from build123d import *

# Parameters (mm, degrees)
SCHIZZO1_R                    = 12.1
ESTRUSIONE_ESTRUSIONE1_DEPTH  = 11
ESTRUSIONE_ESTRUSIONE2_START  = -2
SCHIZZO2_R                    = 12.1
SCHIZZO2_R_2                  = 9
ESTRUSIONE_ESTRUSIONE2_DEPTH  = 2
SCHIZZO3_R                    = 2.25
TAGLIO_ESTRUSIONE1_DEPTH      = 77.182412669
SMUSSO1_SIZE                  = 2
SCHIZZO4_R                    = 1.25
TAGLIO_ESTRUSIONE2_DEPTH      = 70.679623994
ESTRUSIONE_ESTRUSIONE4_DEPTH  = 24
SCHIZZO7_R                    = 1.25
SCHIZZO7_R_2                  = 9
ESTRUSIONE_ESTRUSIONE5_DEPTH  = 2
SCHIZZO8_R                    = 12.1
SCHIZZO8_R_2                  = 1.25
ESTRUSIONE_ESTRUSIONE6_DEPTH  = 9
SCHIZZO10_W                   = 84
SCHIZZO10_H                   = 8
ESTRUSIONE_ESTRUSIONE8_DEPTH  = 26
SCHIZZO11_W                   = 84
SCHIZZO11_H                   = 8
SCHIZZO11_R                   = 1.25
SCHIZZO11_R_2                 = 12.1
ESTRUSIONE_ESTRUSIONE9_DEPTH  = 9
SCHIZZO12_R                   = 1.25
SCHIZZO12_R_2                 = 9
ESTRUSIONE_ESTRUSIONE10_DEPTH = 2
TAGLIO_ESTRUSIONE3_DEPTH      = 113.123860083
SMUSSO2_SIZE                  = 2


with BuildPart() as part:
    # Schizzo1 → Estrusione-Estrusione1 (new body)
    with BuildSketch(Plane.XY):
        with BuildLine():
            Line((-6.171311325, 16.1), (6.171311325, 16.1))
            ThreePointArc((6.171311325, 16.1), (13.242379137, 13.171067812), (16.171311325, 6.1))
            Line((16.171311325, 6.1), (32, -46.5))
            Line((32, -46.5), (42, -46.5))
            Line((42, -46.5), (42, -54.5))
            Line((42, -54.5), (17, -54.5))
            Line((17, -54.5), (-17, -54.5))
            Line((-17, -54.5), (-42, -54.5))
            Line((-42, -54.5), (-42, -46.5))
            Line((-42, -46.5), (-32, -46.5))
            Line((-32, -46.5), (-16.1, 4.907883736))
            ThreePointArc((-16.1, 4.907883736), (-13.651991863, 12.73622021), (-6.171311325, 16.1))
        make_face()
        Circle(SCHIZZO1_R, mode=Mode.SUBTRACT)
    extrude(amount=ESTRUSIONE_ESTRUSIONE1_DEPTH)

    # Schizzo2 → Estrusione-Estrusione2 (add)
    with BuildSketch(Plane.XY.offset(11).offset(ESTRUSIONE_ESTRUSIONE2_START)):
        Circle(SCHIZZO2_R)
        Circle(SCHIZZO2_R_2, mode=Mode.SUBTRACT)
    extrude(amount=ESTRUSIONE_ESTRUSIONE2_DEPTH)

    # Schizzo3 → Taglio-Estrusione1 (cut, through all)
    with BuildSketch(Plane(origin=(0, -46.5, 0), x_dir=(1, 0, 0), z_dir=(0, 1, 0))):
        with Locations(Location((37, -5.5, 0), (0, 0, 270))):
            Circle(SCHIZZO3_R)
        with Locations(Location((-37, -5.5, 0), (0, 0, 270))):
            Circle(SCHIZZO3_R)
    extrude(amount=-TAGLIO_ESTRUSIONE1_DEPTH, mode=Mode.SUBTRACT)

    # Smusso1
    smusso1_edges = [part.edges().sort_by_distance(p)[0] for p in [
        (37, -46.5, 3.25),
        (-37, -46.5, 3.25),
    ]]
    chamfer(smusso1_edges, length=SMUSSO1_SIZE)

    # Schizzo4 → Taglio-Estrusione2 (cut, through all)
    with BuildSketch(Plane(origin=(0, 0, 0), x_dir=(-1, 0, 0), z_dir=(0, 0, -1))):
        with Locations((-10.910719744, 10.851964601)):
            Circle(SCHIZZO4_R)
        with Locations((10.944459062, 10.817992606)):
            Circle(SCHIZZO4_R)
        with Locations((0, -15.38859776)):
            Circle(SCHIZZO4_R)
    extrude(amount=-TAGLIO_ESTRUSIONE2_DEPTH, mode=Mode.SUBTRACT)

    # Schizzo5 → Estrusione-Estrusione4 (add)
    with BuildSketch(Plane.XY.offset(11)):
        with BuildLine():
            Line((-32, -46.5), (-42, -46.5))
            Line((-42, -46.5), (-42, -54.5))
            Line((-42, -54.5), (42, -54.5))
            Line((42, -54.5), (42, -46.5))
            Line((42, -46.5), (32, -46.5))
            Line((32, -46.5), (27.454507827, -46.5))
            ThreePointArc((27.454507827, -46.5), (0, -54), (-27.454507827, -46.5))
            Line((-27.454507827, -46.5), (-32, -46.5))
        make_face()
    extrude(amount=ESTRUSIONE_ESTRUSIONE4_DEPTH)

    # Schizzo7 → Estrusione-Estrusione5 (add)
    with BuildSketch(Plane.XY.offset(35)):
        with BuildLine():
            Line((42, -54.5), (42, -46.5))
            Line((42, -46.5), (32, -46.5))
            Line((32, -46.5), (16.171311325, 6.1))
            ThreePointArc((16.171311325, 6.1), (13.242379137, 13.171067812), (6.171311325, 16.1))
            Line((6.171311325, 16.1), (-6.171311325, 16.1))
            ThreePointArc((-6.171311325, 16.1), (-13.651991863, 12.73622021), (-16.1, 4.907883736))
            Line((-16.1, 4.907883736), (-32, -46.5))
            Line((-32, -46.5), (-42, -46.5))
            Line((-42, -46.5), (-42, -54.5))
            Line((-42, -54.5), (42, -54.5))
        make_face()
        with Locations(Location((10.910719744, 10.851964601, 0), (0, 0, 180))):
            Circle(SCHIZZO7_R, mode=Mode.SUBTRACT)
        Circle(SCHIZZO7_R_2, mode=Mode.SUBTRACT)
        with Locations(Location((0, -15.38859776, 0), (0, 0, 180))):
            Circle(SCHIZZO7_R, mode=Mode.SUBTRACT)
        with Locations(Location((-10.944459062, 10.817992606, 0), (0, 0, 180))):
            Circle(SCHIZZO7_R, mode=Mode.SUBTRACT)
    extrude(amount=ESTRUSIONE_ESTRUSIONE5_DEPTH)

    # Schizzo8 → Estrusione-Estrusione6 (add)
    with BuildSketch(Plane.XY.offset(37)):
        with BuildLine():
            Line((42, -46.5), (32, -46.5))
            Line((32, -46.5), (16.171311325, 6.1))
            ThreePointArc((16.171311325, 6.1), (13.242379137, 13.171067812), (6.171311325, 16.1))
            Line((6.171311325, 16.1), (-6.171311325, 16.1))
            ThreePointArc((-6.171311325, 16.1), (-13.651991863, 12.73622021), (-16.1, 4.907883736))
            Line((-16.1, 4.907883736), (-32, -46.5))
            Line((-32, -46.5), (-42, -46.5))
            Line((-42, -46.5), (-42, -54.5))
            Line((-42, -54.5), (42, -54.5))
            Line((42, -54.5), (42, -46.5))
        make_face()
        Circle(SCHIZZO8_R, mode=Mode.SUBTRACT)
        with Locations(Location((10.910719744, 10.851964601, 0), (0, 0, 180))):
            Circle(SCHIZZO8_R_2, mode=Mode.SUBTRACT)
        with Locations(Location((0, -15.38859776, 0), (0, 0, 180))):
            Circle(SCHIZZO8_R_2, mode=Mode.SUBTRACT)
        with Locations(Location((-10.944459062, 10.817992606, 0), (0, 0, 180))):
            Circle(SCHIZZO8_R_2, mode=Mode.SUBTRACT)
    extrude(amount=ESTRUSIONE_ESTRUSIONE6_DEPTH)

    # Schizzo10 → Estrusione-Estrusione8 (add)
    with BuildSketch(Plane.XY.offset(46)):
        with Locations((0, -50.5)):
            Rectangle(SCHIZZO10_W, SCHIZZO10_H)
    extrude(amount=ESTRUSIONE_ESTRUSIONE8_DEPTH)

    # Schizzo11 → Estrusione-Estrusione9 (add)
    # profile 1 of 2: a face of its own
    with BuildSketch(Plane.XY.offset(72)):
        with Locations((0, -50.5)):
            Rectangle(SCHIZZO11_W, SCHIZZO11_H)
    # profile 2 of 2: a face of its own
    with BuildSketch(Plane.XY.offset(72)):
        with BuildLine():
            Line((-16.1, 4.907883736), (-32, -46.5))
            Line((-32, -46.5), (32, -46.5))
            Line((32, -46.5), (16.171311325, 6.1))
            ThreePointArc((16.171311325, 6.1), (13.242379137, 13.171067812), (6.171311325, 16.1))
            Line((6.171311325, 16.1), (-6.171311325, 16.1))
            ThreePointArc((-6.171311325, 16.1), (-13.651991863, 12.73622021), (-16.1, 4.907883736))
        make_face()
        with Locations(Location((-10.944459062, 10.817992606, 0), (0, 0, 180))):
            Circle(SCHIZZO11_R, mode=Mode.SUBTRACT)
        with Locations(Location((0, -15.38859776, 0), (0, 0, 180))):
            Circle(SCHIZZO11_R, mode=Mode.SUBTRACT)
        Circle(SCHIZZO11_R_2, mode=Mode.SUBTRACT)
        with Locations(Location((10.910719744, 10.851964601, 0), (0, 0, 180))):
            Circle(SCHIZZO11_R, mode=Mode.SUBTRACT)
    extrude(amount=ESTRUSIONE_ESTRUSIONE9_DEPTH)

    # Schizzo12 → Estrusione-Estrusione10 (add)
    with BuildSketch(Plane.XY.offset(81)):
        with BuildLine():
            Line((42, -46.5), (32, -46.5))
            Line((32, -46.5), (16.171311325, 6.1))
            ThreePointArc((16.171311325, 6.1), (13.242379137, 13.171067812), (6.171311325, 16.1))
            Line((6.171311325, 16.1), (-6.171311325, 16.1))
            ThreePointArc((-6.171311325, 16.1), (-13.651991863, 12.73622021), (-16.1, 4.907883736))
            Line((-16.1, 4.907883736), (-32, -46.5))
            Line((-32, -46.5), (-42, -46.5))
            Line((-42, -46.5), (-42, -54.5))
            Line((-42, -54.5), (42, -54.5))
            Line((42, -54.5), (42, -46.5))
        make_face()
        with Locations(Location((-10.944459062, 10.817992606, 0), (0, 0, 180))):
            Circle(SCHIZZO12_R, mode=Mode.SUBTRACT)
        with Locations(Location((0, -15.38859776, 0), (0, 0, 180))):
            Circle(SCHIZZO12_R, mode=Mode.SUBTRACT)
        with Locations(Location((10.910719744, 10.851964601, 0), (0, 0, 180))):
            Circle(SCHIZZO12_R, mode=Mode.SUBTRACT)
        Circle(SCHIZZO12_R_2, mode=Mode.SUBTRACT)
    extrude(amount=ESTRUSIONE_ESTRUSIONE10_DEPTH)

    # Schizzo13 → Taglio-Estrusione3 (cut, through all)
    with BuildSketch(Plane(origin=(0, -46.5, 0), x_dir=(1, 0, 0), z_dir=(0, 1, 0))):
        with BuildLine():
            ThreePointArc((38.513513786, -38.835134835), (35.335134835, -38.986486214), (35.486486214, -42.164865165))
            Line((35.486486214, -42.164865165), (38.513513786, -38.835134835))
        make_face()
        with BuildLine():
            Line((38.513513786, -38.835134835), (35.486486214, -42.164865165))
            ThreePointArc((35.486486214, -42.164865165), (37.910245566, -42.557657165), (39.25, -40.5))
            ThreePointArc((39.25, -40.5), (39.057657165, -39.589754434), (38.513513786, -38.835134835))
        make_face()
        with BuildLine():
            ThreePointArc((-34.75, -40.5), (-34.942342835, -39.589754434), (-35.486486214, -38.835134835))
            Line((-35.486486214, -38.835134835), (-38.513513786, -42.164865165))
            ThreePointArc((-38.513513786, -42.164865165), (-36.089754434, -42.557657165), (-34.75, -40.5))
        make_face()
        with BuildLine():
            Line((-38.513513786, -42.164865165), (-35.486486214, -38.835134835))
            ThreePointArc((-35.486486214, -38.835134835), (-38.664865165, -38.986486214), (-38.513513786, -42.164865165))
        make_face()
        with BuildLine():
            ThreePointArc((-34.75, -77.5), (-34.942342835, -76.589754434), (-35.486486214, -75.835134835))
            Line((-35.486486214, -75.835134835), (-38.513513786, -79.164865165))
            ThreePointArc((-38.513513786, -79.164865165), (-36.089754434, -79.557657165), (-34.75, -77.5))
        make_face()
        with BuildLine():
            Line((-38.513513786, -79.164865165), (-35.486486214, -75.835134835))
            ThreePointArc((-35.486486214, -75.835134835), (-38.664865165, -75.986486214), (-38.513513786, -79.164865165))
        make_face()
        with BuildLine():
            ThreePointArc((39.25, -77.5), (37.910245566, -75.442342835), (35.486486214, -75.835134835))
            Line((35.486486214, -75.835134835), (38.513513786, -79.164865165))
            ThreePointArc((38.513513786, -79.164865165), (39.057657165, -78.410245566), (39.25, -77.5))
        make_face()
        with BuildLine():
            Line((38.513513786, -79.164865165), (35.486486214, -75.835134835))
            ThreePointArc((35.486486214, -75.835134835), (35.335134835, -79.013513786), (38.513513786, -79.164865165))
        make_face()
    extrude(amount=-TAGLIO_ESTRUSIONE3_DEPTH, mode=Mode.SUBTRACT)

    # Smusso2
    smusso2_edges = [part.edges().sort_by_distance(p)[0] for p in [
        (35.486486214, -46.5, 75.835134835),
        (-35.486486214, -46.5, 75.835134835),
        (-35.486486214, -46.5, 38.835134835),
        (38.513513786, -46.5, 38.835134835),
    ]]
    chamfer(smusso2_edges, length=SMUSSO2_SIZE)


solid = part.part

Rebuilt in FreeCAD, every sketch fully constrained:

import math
import FreeCAD as App
import Part
import Sketcher
from FreeCAD import Vector


def edges_at(feature, points):
    """Names of the edges that pass closest to the given points."""
    edges = feature.Shape.Edges
    near = lambda p: min(range(len(edges)), key=lambda i: edges[i].distToShape(Part.Vertex(*p))[0])
    return sorted({f"Edge{near(p) + 1}" for p in points})

doc = App.newDocument("Part")
body = doc.addObject("PartDesign::Body", "Body")

sketch1 = body.newObject("Sketcher::SketchObject", "Sketch")
sketch1.AttachmentSupport = (doc.getObject("XY_Plane"), [""])
sketch1.MapMode = "FlatFace"
sketch1.addGeometry([
    Part.LineSegment(Vector(6, 16, 0), Vector(-6, 16, 0)),
    Part.ArcOfCircle(Part.Circle(Vector(-6, 6, 0), Vector(0, 0, 1), 10), math.radians(90), math.radians(187)),
    Part.LineSegment(Vector(-16, 5, 0), Vector(-32, -46, 0)),
    Part.LineSegment(Vector(-32, -46, 0), Vector(-42, -46, 0)),
    Part.LineSegment(Vector(-42, -46, 0), Vector(-42, -54, 0)),
    Part.LineSegment(Vector(-42, -54, 0), Vector(42, -54, 0)),
    Part.LineSegment(Vector(42, -54, 0), Vector(42, -46, 0)),
    Part.LineSegment(Vector(42, -46, 0), Vector(32, -46, 0)),
    Part.LineSegment(Vector(32, -46, 0), Vector(16, 6, 0)),
    Part.ArcOfCircle(Part.Circle(Vector(6, 6, 0), Vector(0, 0, 1), 10), math.radians(0), math.radians(90)),
    Part.Circle(Vector(0, 0, 0), Vector(0, 0, 1), 12),
], False)
sketch1.addConstraint([
    Sketcher.Constraint("Tangent", 0, 2, 1, 1),
    Sketcher.Constraint("Coincident", 1, 2, 2, 1),
    Sketcher.Constraint("Coincident", 2, 2, 3, 1),
    Sketcher.Constraint("Coincident", 3, 2, 4, 1),
    Sketcher.Constraint("Coincident", 4, 2, 5, 1),
    Sketcher.Constraint("Coincident", 5, 2, 6, 1),
    Sketcher.Constraint("Coincident", 6, 2, 7, 1),
    Sketcher.Constraint("Coincident", 7, 2, 8, 1),
    Sketcher.Constraint("Coincident", 8, 2, 9, 1),
    Sketcher.Constraint("Tangent", 9, 2, 0, 1),
    Sketcher.Constraint("Horizontal", 0),
    Sketcher.Constraint("Horizontal", 3),
    Sketcher.Constraint("Vertical", 4),
    Sketcher.Constraint("Horizontal", 5),
    Sketcher.Constraint("Vertical", 6),
    Sketcher.Constraint("Horizontal", 7),
    Sketcher.Constraint("Coincident", 10, 3, -1, 1),
    Sketcher.Constraint("Equal", 1, 9),
    Sketcher.Constraint("Symmetric", 3, 2, 6, 2, -2),
    Sketcher.Constraint("Horizontal", 9, 3, 8, 2),
    Sketcher.Constraint("Equal", 3, 7),
    Sketcher.Constraint("Radius", 1, 10.0),
    Sketcher.Constraint("Diameter", 10, 24.2),
    Sketcher.Constraint("DistanceX", 3, 2, 3, 1, 10.0),
    Sketcher.Constraint("DistanceX", 5, 1, 5, 2, 84.0),
    Sketcher.Constraint("DistanceY", 4, 2, 4, 1, 8.0),
    Sketcher.Constraint("DistanceY", -1, 1, 1, 3, 6.1),
    Sketcher.Constraint("DistanceX", 1, 2, -1, 1, 16.1),
    Sketcher.Constraint("DistanceY", 2, 2, -1, 1, 46.5),
    Sketcher.Constraint("Distance", 2, 53.810598),
    Sketcher.Constraint("DistanceX", 0, 2, 0, 1, 12.342623),
])
pad1 = body.newObject("PartDesign::Pad", "Pad")
pad1.Profile = sketch1
pad1.Length = 11

sketch2 = body.newObject("Sketcher::SketchObject", "Sketch001")
sketch2.AttachmentSupport = (doc.getObject("XY_Plane"), [""])
sketch2.MapMode = "FlatFace"
sketch2.AttachmentOffset = App.Placement(Vector(0, 0, 9), App.Rotation())
sketch2.addGeometry([
    Part.Circle(Vector(0, 0, 0), Vector(0, 0, 1), 12),
    Part.Circle(Vector(0, 0, 0), Vector(0, 0, 1), 9),
], False)
sketch2.addConstraint([
    Sketcher.Constraint("Coincident", 0, 3, -1, 1),
    Sketcher.Constraint("Coincident", 1, 3, -1, 1),
    Sketcher.Constraint("Diameter", 1, 18.0),
    Sketcher.Constraint("Diameter", 0, 24.2),
])
pad2 = body.newObject("PartDesign::Pad", "Pad001")
pad2.Profile = sketch2
pad2.Length = 2

sketch3 = body.newObject("Sketcher::SketchObject", "Sketch002")
sketch3.AttachmentSupport = (doc.getObject("XZ_Plane"), [""])
sketch3.MapMode = "FlatFace"
sketch3.AttachmentOffset = App.Placement(Vector(0, 0, 46.5), App.Rotation())
sketch3.addGeometry([
    Part.Circle(Vector(37, 5.5, 0), Vector(0, 0, 1), 2.2),
    Part.Circle(Vector(-37, 5.5, 0), Vector(0, 0, 1), 2.2),
], False)
sketch3.addConstraint([
    Sketcher.Constraint("Equal", 0, 1),
    Sketcher.Constraint("Symmetric", 0, 3, 1, 3, -2),
    Sketcher.Constraint("Diameter", 0, 4.5),
    Sketcher.Constraint("DistanceX", -1, 1, 0, 3, 37.0),
    Sketcher.Constraint("DistanceY", -1, 1, 0, 3, 5.5),
])
pocket1 = body.newObject("PartDesign::Pocket", "Pocket")
pocket1.Profile = sketch3
pocket1.Type = "ThroughAll"
pocket1.Reversed = True
doc.recompute()

chamfer = body.newObject("PartDesign::Chamfer", "Chamfer")
chamfer.Base = (pocket1, edges_at(pocket1, [(37, -46.5, 3.25), (-37, -46.5, 3.25)]))
chamfer.Size = 2

sketch4 = body.newObject("Sketcher::SketchObject", "Sketch003")
sketch4.AttachmentSupport = (doc.getObject("XY_Plane"), [""])
sketch4.MapMode = "FlatFace"
sketch4.addGeometry([
    Part.Circle(Vector(10.9, 10.9, 0), Vector(0, 0, 1), 1.2),
    Part.Circle(Vector(-10.9, 10.8, 0), Vector(0, 0, 1), 1.2),
    Part.Circle(Vector(0, -15.4, 0), Vector(0, 0, 1), 1.2),
], False)
sketch4.addConstraint([
    Sketcher.Constraint("Equal", 0, 1),
    Sketcher.Constraint("Equal", 1, 2),
    Sketcher.Constraint("PointOnObject", 2, 3, -2),
    Sketcher.Constraint("Diameter", 0, 2.5),
    Sketcher.Constraint("DistanceX", -1, 1, 0, 3, 10.91072),
    Sketcher.Constraint("DistanceX", 1, 3, -1, 1, 10.944459),
    Sketcher.Constraint("DistanceY", 1, 3, 0, 3, 0.033972),
    Sketcher.Constraint("DistanceY", 2, 3, 1, 3, 26.20659),
    Sketcher.Constraint("DistanceY", -1, 1, 0, 3, 10.851965),
])
pocket2 = body.newObject("PartDesign::Pocket", "Pocket001")
pocket2.Profile = sketch4
pocket2.Type = "ThroughAll"
pocket2.Reversed = True

sketch5 = body.newObject("Sketcher::SketchObject", "Sketch004")
sketch5.AttachmentSupport = (doc.getObject("XY_Plane"), [""])
sketch5.MapMode = "FlatFace"
sketch5.AttachmentOffset = App.Placement(Vector(0, 0, 11), App.Rotation())
sketch5.addGeometry([
    Part.LineSegment(Vector(-42, -46, 0), Vector(-42, -54, 0)),
    Part.LineSegment(Vector(-42, -54, 0), Vector(42, -54, 0)),
    Part.LineSegment(Vector(42, -54, 0), Vector(42, -46, 0)),
    Part.LineSegment(Vector(42, -46, 0), Vector(27, -46, 0)),
    Part.ArcOfCircle(Part.Circle(Vector(0, 0, 0), Vector(0, 0, 1), 54), math.radians(-121), math.radians(-59)),
    Part.LineSegment(Vector(-27, -46, 0), Vector(-42, -46, 0)),
], False)
sketch5.addConstraint([
    Sketcher.Constraint("Coincident", 0, 2, 1, 1),
    Sketcher.Constraint("Coincident", 1, 2, 2, 1),
    Sketcher.Constraint("Coincident", 2, 2, 3, 1),
    Sketcher.Constraint("Coincident", 3, 2, 4, 2),
    Sketcher.Constraint("Coincident", 4, 1, 5, 1),
    Sketcher.Constraint("Coincident", 5, 2, 0, 1),
    Sketcher.Constraint("Vertical", 0),
    Sketcher.Constraint("Horizontal", 1),
    Sketcher.Constraint("Vertical", 2),
    Sketcher.Constraint("Horizontal", 3),
    Sketcher.Constraint("Horizontal", 5),
    Sketcher.Constraint("Coincident", 4, 3, -1, 1),
    Sketcher.Constraint("Symmetric", 2, 2, 5, 2, -2),
    Sketcher.Constraint("Radius", 4, 54.0),
    Sketcher.Constraint("DistanceX", 1, 1, 1, 2, 84.0),
    Sketcher.Constraint("DistanceY", 0, 2, 0, 1, 8.0),
    Sketcher.Constraint("DistanceY", 0, 2, -1, 1, 54.5),
])
pad3 = body.newObject("PartDesign::Pad", "Pad002")
pad3.Profile = sketch5
pad3.Length = 24

sketch6 = body.newObject("Sketcher::SketchObject", "Sketch005")
sketch6.AttachmentSupport = (doc.getObject("XY_Plane"), [""])
sketch6.MapMode = "FlatFace"
sketch6.AttachmentOffset = App.Placement(Vector(0, 0, 35), App.Rotation())
sketch6.addGeometry([
    Part.LineSegment(Vector(42, -54.5, 0), Vector(42, -46.5, 0)),
    Part.LineSegment(Vector(42, -46.5, 0), Vector(32, -46.5, 0)),
    Part.LineSegment(Vector(32, -46.5, 0), Vector(16.2, 6.1, 0)),
    Part.ArcOfCircle(Part.Circle(Vector(6.2, 6.1, 0), Vector(0, 0, 1), 10), math.radians(0), math.radians(90)),
    Part.LineSegment(Vector(6.2, 16.1, 0), Vector(-6.2, 16.1, 0)),
    Part.ArcOfCircle(Part.Circle(Vector(-6.2, 6.1, 0), Vector(0, 0, 1), 10), math.radians(90), math.radians(187)),
    Part.LineSegment(Vector(-16.1, 4.9, 0), Vector(-32, -46.5, 0)),
    Part.LineSegment(Vector(-32, -46.5, 0), Vector(-42, -46.5, 0)),
    Part.LineSegment(Vector(-42, -46.5, 0), Vector(-42, -54.5, 0)),
    Part.LineSegment(Vector(-42, -54.5, 0), Vector(42, -54.5, 0)),
    Part.Circle(Vector(0, -15.4, 0), Vector(0, 0, 1), 1.2),
    Part.Circle(Vector(-10.9, 10.8, 0), Vector(0, 0, 1), 1.2),
    Part.Circle(Vector(0, 0, 0), Vector(0, 0, 1), 9),
    Part.Circle(Vector(10.9, 10.9, 0), Vector(0, 0, 1), 1.2),
], False)
sketch6.addConstraint([
    Sketcher.Constraint("Coincident", 0, 2, 1, 1),
    Sketcher.Constraint("Coincident", 1, 2, 2, 1),
    Sketcher.Constraint("Coincident", 2, 2, 3, 1),
    Sketcher.Constraint("Tangent", 3, 2, 4, 1),
    Sketcher.Constraint("Tangent", 4, 2, 5, 1),
    Sketcher.Constraint("Coincident", 5, 2, 6, 1),
    Sketcher.Constraint("Coincident", 6, 2, 7, 1),
    Sketcher.Constraint("Coincident", 7, 2, 8, 1),
    Sketcher.Constraint("Coincident", 8, 2, 9, 1),
    Sketcher.Constraint("Coincident", 9, 2, 0, 1),
    Sketcher.Constraint("Vertical", 0),
    Sketcher.Constraint("Horizontal", 1),
    Sketcher.Constraint("Horizontal", 4),
    Sketcher.Constraint("Horizontal", 7),
    Sketcher.Constraint("Vertical", 8),
    Sketcher.Constraint("Horizontal", 9),
    Sketcher.Constraint("Coincident", 12, 3, -1, 1),
    Sketcher.Constraint("Equal", 3, 5),
    Sketcher.Constraint("Equal", 10, 11),
    Sketcher.Constraint("Equal", 11, 13),
    Sketcher.Constraint("Symmetric", 1, 2, 6, 2, -2),
    Sketcher.Constraint("PointOnObject", 10, 3, -2),
    Sketcher.Constraint("Horizontal", 5, 3, 2, 2),
    Sketcher.Constraint("Equal", 1, 7),
    Sketcher.Constraint("Diameter", 12, 18.0),
    Sketcher.Constraint("Radius", 3, 10.0),
    Sketcher.Constraint("Diameter", 10, 2.5),
    Sketcher.Constraint("DistanceX", 1, 2, 1, 1, 10.0),
    Sketcher.Constraint("DistanceX", 9, 1, 9, 2, 84.0),
    Sketcher.Constraint("DistanceY", 0, 1, 0, 2, 8.0),
    Sketcher.Constraint("DistanceY", -1, 1, 3, 3, 6.1),
    Sketcher.Constraint("DistanceY", 0, 2, -1, 1, 46.5),
    Sketcher.Constraint("DistanceX", 5, 2, -1, 1, 16.1),
    Sketcher.Constraint("Distance", 6, 53.810598),
    Sketcher.Constraint("DistanceX", 4, 2, 4, 1, 12.342623),
    Sketcher.Constraint("DistanceX", 11, 3, -1, 1, 10.944459),
    Sketcher.Constraint("DistanceX", -1, 1, 13, 3, 10.91072),
    Sketcher.Constraint("DistanceY", 10, 3, 11, 3, 26.20659),
    Sketcher.Constraint("DistanceY", 11, 3, 13, 3, 0.033972),
    Sketcher.Constraint("DistanceY", 5, 2, 11, 3, 5.910109),
])
pad4 = body.newObject("PartDesign::Pad", "Pad003")
pad4.Profile = sketch6
pad4.Length = 2

sketch7 = body.newObject("Sketcher::SketchObject", "Sketch006")
sketch7.AttachmentSupport = (doc.getObject("XY_Plane"), [""])
sketch7.MapMode = "FlatFace"
sketch7.AttachmentOffset = App.Placement(Vector(0, 0, 37), App.Rotation())
sketch7.addGeometry([
    Part.LineSegment(Vector(42, -46.5, 0), Vector(32, -46.5, 0)),
    Part.LineSegment(Vector(32, -46.5, 0), Vector(16.2, 6.1, 0)),
    Part.ArcOfCircle(Part.Circle(Vector(6.2, 6.1, 0), Vector(0, 0, 1), 10), math.radians(0), math.radians(90)),
    Part.LineSegment(Vector(6.2, 16.1, 0), Vector(-6.2, 16.1, 0)),
    Part.ArcOfCircle(Part.Circle(Vector(-6.2, 6.1, 0), Vector(0, 0, 1), 10), math.radians(90), math.radians(187)),
    Part.LineSegment(Vector(-16.1, 4.9, 0), Vector(-32, -46.5, 0)),
    Part.LineSegment(Vector(-32, -46.5, 0), Vector(-42, -46.5, 0)),
    Part.LineSegment(Vector(-42, -46.5, 0), Vector(-42, -54.5, 0)),
    Part.LineSegment(Vector(-42, -54.5, 0), Vector(42, -54.5, 0)),
    Part.LineSegment(Vector(42, -54.5, 0), Vector(42, -46.5, 0)),
    Part.Circle(Vector(0, -15.4, 0), Vector(0, 0, 1), 1.2),
    Part.Circle(Vector(-10.9, 10.8, 0), Vector(0, 0, 1), 1.2),
    Part.Circle(Vector(0, 0, 0), Vector(0, 0, 1), 12.1),
    Part.Circle(Vector(10.9, 10.9, 0), Vector(0, 0, 1), 1.2),
], False)
sketch7.addConstraint([
    Sketcher.Constraint("Coincident", 0, 2, 1, 1),
    Sketcher.Constraint("Coincident", 1, 2, 2, 1),
    Sketcher.Constraint("Tangent", 2, 2, 3, 1),
    Sketcher.Constraint("Tangent", 3, 2, 4, 1),
    Sketcher.Constraint("Coincident", 4, 2, 5, 1),
    Sketcher.Constraint("Coincident", 5, 2, 6, 1),
    Sketcher.Constraint("Coincident", 6, 2, 7, 1),
    Sketcher.Constraint("Coincident", 7, 2, 8, 1),
    Sketcher.Constraint("Coincident", 8, 2, 9, 1),
    Sketcher.Constraint("Coincident", 9, 2, 0, 1),
    Sketcher.Constraint("Horizontal", 0),
    Sketcher.Constraint("Horizontal", 3),
    Sketcher.Constraint("Horizontal", 6),
    Sketcher.Constraint("Vertical", 7),
    Sketcher.Constraint("Horizontal", 8),
    Sketcher.Constraint("Vertical", 9),
    Sketcher.Constraint("Coincident", 12, 3, -1, 1),
    Sketcher.Constraint("Equal", 2, 4),
    Sketcher.Constraint("Equal", 10, 11),
    Sketcher.Constraint("Equal", 11, 13),
    Sketcher.Constraint("Symmetric", 0, 2, 5, 2, -2),
    Sketcher.Constraint("PointOnObject", 10, 3, -2),
    Sketcher.Constraint("Horizontal", 4, 3, 1, 2),
    Sketcher.Constraint("Equal", 0, 6),
    Sketcher.Constraint("Radius", 2, 10.0),
    Sketcher.Constraint("Diameter", 10, 2.5),
    Sketcher.Constraint("Diameter", 12, 24.2),
    Sketcher.Constraint("DistanceX", 0, 2, 0, 1, 10.0),
    Sketcher.Constraint("DistanceX", 8, 1, 8, 2, 84.0),
    Sketcher.Constraint("DistanceY", 7, 2, 7, 1, 8.0),
    Sketcher.Constraint("DistanceY", -1, 1, 2, 3, 6.1),
    Sketcher.Constraint("DistanceY", 0, 2, -1, 1, 46.5),
    Sketcher.Constraint("DistanceX", 4, 2, -1, 1, 16.1),
    Sketcher.Constraint("Distance", 5, 53.810598),
    Sketcher.Constraint("DistanceX", 3, 2, 3, 1, 12.342623),
    Sketcher.Constraint("DistanceX", 11, 3, -1, 1, 10.944459),
    Sketcher.Constraint("DistanceX", -1, 1, 13, 3, 10.91072),
    Sketcher.Constraint("DistanceY", 10, 3, 11, 3, 26.20659),
    Sketcher.Constraint("DistanceY", 11, 3, 13, 3, 0.033972),
    Sketcher.Constraint("DistanceY", 4, 2, 11, 3, 5.910109),
])
pad5 = body.newObject("PartDesign::Pad", "Pad004")
pad5.Profile = sketch7
pad5.Length = 9

sketch8 = body.newObject("Sketcher::SketchObject", "Sketch007")
sketch8.AttachmentSupport = (doc.getObject("XY_Plane"), [""])
sketch8.MapMode = "FlatFace"
sketch8.AttachmentOffset = App.Placement(Vector(0, 0, 46), App.Rotation())
sketch8.addGeometry([
    Part.LineSegment(Vector(-42, -46, 0), Vector(-42, -54, 0)),
    Part.LineSegment(Vector(-42, -54, 0), Vector(42, -54, 0)),
    Part.LineSegment(Vector(42, -54, 0), Vector(42, -46, 0)),
    Part.LineSegment(Vector(42, -46, 0), Vector(-42, -46, 0)),
], False)
sketch8.addConstraint([
    Sketcher.Constraint("Coincident", 0, 2, 1, 1),
    Sketcher.Constraint("Coincident", 1, 2, 2, 1),
    Sketcher.Constraint("Coincident", 2, 2, 3, 1),
    Sketcher.Constraint("Coincident", 3, 2, 0, 1),
    Sketcher.Constraint("Vertical", 0),
    Sketcher.Constraint("Horizontal", 1),
    Sketcher.Constraint("Vertical", 2),
    Sketcher.Constraint("Horizontal", 3),
    Sketcher.Constraint("DistanceX", 1, 1, 1, 2, 84.0),
    Sketcher.Constraint("DistanceY", 0, 2, 0, 1, 8.0),
    Sketcher.Constraint("DistanceX", 0, 2, -1, 1, 42.0),
    Sketcher.Constraint("DistanceY", 0, 2, -1, 1, 54.5),
])
pad6 = body.newObject("PartDesign::Pad", "Pad005")
pad6.Profile = sketch8
pad6.Length = 26

sketch9 = body.newObject("Sketcher::SketchObject", "Sketch008")
sketch9.AttachmentSupport = (doc.getObject("XY_Plane"), [""])
sketch9.MapMode = "FlatFace"
sketch9.AttachmentOffset = App.Placement(Vector(0, 0, 72), App.Rotation())
sketch9.addGeometry([
    Part.LineSegment(Vector(-42, -46.5, 0), Vector(-42, -54.5, 0)),
    Part.LineSegment(Vector(-42, -54.5, 0), Vector(42, -54.5, 0)),
    Part.LineSegment(Vector(42, -54.5, 0), Vector(42, -46.5, 0)),
    Part.LineSegment(Vector(42, -46.5, 0), Vector(32, -46.5, 0)),
    Part.LineSegment(Vector(32, -46.5, 0), Vector(16.2, 6.1, 0)),
    Part.ArcOfCircle(Part.Circle(Vector(6.2, 6.1, 0), Vector(0, 0, 1), 10), math.radians(0), math.radians(90)),
    Part.LineSegment(Vector(6.2, 16.1, 0), Vector(-6.2, 16.1, 0)),
    Part.ArcOfCircle(Part.Circle(Vector(-6.2, 6.1, 0), Vector(0, 0, 1), 10), math.radians(90), math.radians(187)),
    Part.LineSegment(Vector(-16.1, 4.9, 0), Vector(-32, -46.5, 0)),
    Part.LineSegment(Vector(-32, -46.5, 0), Vector(-42, -46.5, 0)),
    Part.Circle(Vector(10.9, 10.9, 0), Vector(0, 0, 1), 1.2),
    Part.Circle(Vector(0, -15.4, 0), Vector(0, 0, 1), 1.2),
    Part.Circle(Vector(-10.9, 10.8, 0), Vector(0, 0, 1), 1.2),
    Part.Circle(Vector(0, 0, 0), Vector(0, 0, 1), 12.1),
], False)
sketch9.addConstraint([
    Sketcher.Constraint("Coincident", 0, 2, 1, 1),
    Sketcher.Constraint("Coincident", 1, 2, 2, 1),
    Sketcher.Constraint("Coincident", 2, 2, 3, 1),
    Sketcher.Constraint("Coincident", 3, 2, 4, 1),
    Sketcher.Constraint("Coincident", 4, 2, 5, 1),
    Sketcher.Constraint("Tangent", 5, 2, 6, 1),
    Sketcher.Constraint("Tangent", 6, 2, 7, 1),
    Sketcher.Constraint("Coincident", 7, 2, 8, 1),
    Sketcher.Constraint("Coincident", 8, 2, 9, 1),
    Sketcher.Constraint("Coincident", 9, 2, 0, 1),
    Sketcher.Constraint("Vertical", 0),
    Sketcher.Constraint("Horizontal", 1),
    Sketcher.Constraint("Vertical", 2),
    Sketcher.Constraint("Horizontal", 3),
    Sketcher.Constraint("Horizontal", 6),
    Sketcher.Constraint("Horizontal", 9),
    Sketcher.Constraint("Coincident", 13, 3, -1, 1),
    Sketcher.Constraint("Equal", 5, 7),
    Sketcher.Constraint("Equal", 10, 11),
    Sketcher.Constraint("Equal", 11, 12),
    Sketcher.Constraint("Symmetric", 3, 2, 8, 2, -2),
    Sketcher.Constraint("PointOnObject", 11, 3, -2),
    Sketcher.Constraint("Horizontal", 7, 3, 4, 2),
    Sketcher.Constraint("Equal", 3, 9),
    Sketcher.Constraint("Radius", 5, 10.0),
    Sketcher.Constraint("Diameter", 10, 2.5),
    Sketcher.Constraint("Diameter", 13, 24.2),
    Sketcher.Constraint("DistanceX", 1, 1, 1, 2, 84.0),
    Sketcher.Constraint("DistanceX", 3, 2, 3, 1, 10.0),
    Sketcher.Constraint("DistanceY", 0, 2, 0, 1, 8.0),
    Sketcher.Constraint("DistanceY", -1, 1, 5, 3, 6.1),
    Sketcher.Constraint("DistanceY", 0, 2, -1, 1, 54.5),
    Sketcher.Constraint("DistanceX", 7, 2, -1, 1, 16.1),
    Sketcher.Constraint("Distance", 8, 53.810598),
    Sketcher.Constraint("DistanceX", 6, 2, 6, 1, 12.342623),
    Sketcher.Constraint("DistanceX", -1, 1, 10, 3, 10.91072),
    Sketcher.Constraint("DistanceX", 12, 3, -1, 1, 10.944459),
    Sketcher.Constraint("DistanceY", 12, 3, 10, 3, 0.033972),
    Sketcher.Constraint("DistanceY", 11, 3, 12, 3, 26.20659),
    Sketcher.Constraint("DistanceY", 7, 2, 12, 3, 5.910109),
])
pad7 = body.newObject("PartDesign::Pad", "Pad006")
pad7.Profile = sketch9
pad7.Length = 9

sketch10 = body.newObject("Sketcher::SketchObject", "Sketch009")
sketch10.AttachmentSupport = (doc.getObject("XY_Plane"), [""])
sketch10.MapMode = "FlatFace"
sketch10.AttachmentOffset = App.Placement(Vector(0, 0, 81), App.Rotation())
sketch10.addGeometry([
    Part.LineSegment(Vector(42, -46.5, 0), Vector(32, -46.5, 0)),
    Part.LineSegment(Vector(32, -46.5, 0), Vector(16.2, 6.1, 0)),
    Part.ArcOfCircle(Part.Circle(Vector(6.2, 6.1, 0), Vector(0, 0, 1), 10), math.radians(0), math.radians(90)),
    Part.LineSegment(Vector(6.2, 16.1, 0), Vector(-6.2, 16.1, 0)),
    Part.ArcOfCircle(Part.Circle(Vector(-6.2, 6.1, 0), Vector(0, 0, 1), 10), math.radians(90), math.radians(187)),
    Part.LineSegment(Vector(-16.1, 4.9, 0), Vector(-32, -46.5, 0)),
    Part.LineSegment(Vector(-32, -46.5, 0), Vector(-42, -46.5, 0)),
    Part.LineSegment(Vector(-42, -46.5, 0), Vector(-42, -54.5, 0)),
    Part.LineSegment(Vector(-42, -54.5, 0), Vector(42, -54.5, 0)),
    Part.LineSegment(Vector(42, -54.5, 0), Vector(42, -46.5, 0)),
    Part.Circle(Vector(0, -15.4, 0), Vector(0, 0, 1), 1.2),
    Part.Circle(Vector(-10.9, 10.8, 0), Vector(0, 0, 1), 1.2),
    Part.Circle(Vector(0, 0, 0), Vector(0, 0, 1), 9),
    Part.Circle(Vector(10.9, 10.9, 0), Vector(0, 0, 1), 1.2),
], False)
sketch10.addConstraint([
    Sketcher.Constraint("Coincident", 0, 2, 1, 1),
    Sketcher.Constraint("Coincident", 1, 2, 2, 1),
    Sketcher.Constraint("Tangent", 2, 2, 3, 1),
    Sketcher.Constraint("Tangent", 3, 2, 4, 1),
    Sketcher.Constraint("Coincident", 4, 2, 5, 1),
    Sketcher.Constraint("Coincident", 5, 2, 6, 1),
    Sketcher.Constraint("Coincident", 6, 2, 7, 1),
    Sketcher.Constraint("Coincident", 7, 2, 8, 1),
    Sketcher.Constraint("Coincident", 8, 2, 9, 1),
    Sketcher.Constraint("Coincident", 9, 2, 0, 1),
    Sketcher.Constraint("Horizontal", 0),
    Sketcher.Constraint("Horizontal", 3),
    Sketcher.Constraint("Horizontal", 6),
    Sketcher.Constraint("Vertical", 7),
    Sketcher.Constraint("Horizontal", 8),
    Sketcher.Constraint("Vertical", 9),
    Sketcher.Constraint("Coincident", 12, 3, -1, 1),
    Sketcher.Constraint("Equal", 2, 4),
    Sketcher.Constraint("Equal", 10, 11),
    Sketcher.Constraint("Equal", 11, 13),
    Sketcher.Constraint("Symmetric", 0, 2, 5, 2, -2),
    Sketcher.Constraint("PointOnObject", 10, 3, -2),
    Sketcher.Constraint("Horizontal", 4, 3, 1, 2),
    Sketcher.Constraint("Equal", 0, 6),
    Sketcher.Constraint("Diameter", 12, 18.0),
    Sketcher.Constraint("Radius", 2, 10.0),
    Sketcher.Constraint("Diameter", 10, 2.5),
    Sketcher.Constraint("DistanceX", 0, 2, 0, 1, 10.0),
    Sketcher.Constraint("DistanceX", 8, 1, 8, 2, 84.0),
    Sketcher.Constraint("DistanceY", 7, 2, 7, 1, 8.0),
    Sketcher.Constraint("DistanceY", -1, 1, 2, 3, 6.1),
    Sketcher.Constraint("DistanceY", 0, 2, -1, 1, 46.5),
    Sketcher.Constraint("DistanceX", 4, 2, -1, 1, 16.1),
    Sketcher.Constraint("Distance", 5, 53.810598),
    Sketcher.Constraint("DistanceX", 3, 2, 3, 1, 12.342623),
    Sketcher.Constraint("DistanceX", 11, 3, -1, 1, 10.944459),
    Sketcher.Constraint("DistanceX", -1, 1, 13, 3, 10.91072),
    Sketcher.Constraint("DistanceY", 10, 3, 11, 3, 26.20659),
    Sketcher.Constraint("DistanceY", 11, 3, 13, 3, 0.033972),
    Sketcher.Constraint("DistanceY", 4, 2, 11, 3, 5.910109),
])
pad8 = body.newObject("PartDesign::Pad", "Pad007")
pad8.Profile = sketch10
pad8.Length = 2

sketch11 = body.newObject("Sketcher::SketchObject", "Sketch010")
sketch11.AttachmentSupport = (doc.getObject("XZ_Plane"), [""])
sketch11.MapMode = "FlatFace"
sketch11.AttachmentOffset = App.Placement(Vector(0, 0, 46.5), App.Rotation())
sketch11.addGeometry([
    Part.ArcOfCircle(Part.Circle(Vector(37, 40.5, 0), Vector(0, 0, 1), 2.2), math.radians(132), math.radians(312)),
    Part.ArcOfCircle(Part.Circle(Vector(37, 40.5, 0), Vector(0, 0, 1), 2.2), math.radians(0), math.radians(132)),
    Part.ArcOfCircle(Part.Circle(Vector(37, 40.5, 0), Vector(0, 0, 1), 2.2), math.radians(-48), math.radians(0)),
    Part.ArcOfCircle(Part.Circle(Vector(-37, 40.5, 0), Vector(0, 0, 1), 2.2), math.radians(-48), math.radians(0)),
    Part.ArcOfCircle(Part.Circle(Vector(-37, 40.5, 0), Vector(0, 0, 1), 2.2), math.radians(132), math.radians(312)),
    Part.ArcOfCircle(Part.Circle(Vector(-37, 40.5, 0), Vector(0, 0, 1), 2.2), math.radians(0), math.radians(132)),
    Part.ArcOfCircle(Part.Circle(Vector(-37, 77.5, 0), Vector(0, 0, 1), 2.2), math.radians(-48), math.radians(0)),
    Part.ArcOfCircle(Part.Circle(Vector(-37, 77.5, 0), Vector(0, 0, 1), 2.2), math.radians(132), math.radians(312)),
    Part.ArcOfCircle(Part.Circle(Vector(-37, 77.5, 0), Vector(0, 0, 1), 2.2), math.radians(0), math.radians(132)),
    Part.ArcOfCircle(Part.Circle(Vector(37, 77.5, 0), Vector(0, 0, 1), 2.2), math.radians(-132), math.radians(0)),
    Part.ArcOfCircle(Part.Circle(Vector(37, 77.5, 0), Vector(0, 0, 1), 2.2), math.radians(48), math.radians(228)),
    Part.ArcOfCircle(Part.Circle(Vector(37, 77.5, 0), Vector(0, 0, 1), 2.2), math.radians(0), math.radians(48)),
], False)
sketch11.addConstraint([
    Sketcher.Constraint("Tangent", 0, 1, 1, 2),
    Sketcher.Constraint("Tangent", 1, 1, 2, 2),
    Sketcher.Constraint("Tangent", 2, 1, 0, 2),
    Sketcher.Constraint("Tangent", 3, 1, 4, 2),
    Sketcher.Constraint("Tangent", 4, 1, 5, 2),
    Sketcher.Constraint("Tangent", 5, 1, 3, 2),
    Sketcher.Constraint("Tangent", 6, 1, 7, 2),
    Sketcher.Constraint("Tangent", 7, 1, 8, 2),
    Sketcher.Constraint("Tangent", 8, 1, 6, 2),
    Sketcher.Constraint("Tangent", 9, 1, 10, 2),
    Sketcher.Constraint("Tangent", 10, 1, 11, 2),
    Sketcher.Constraint("Tangent", 11, 1, 9, 2),
    Sketcher.Constraint("Equal", 2, 3),
    Sketcher.Constraint("Equal", 5, 6),
    Sketcher.Constraint("Equal", 8, 9),
    Sketcher.Constraint("Symmetric", 0, 3, 3, 3, -2),
    Sketcher.Constraint("Symmetric", 6, 3, 9, 3, -2),
    Sketcher.Constraint("Horizontal", 5, 3, 1, 1),
    Sketcher.Constraint("Horizontal", 2, 1, 3, 1),
    Sketcher.Constraint("Horizontal", 0, 1, 4, 1),
    Sketcher.Constraint("Horizontal", 1, 1, 5, 1),
    Sketcher.Constraint("Horizontal", 11, 3, 8, 1),
    Sketcher.Constraint("Horizontal", 6, 1, 9, 1),
    Sketcher.Constraint("Horizontal", 7, 1, 10, 1),
    Sketcher.Constraint("Horizontal", 8, 1, 11, 1),
    Sketcher.Constraint("Vertical", 5, 3, 6, 3),
    Sketcher.Constraint("Vertical", 3, 1, 6, 1),
    Sketcher.Constraint("Vertical", 4, 1, 7, 1),
    Sketcher.Constraint("Vertical", 0, 1, 9, 1),
    Sketcher.Constraint("Radius", 0, 2.25),
    Sketcher.Constraint("DistanceX", -1, 1, 0, 3, 37.0),
    Sketcher.Constraint("DistanceY", 3, 3, 6, 3, 37.0),
    Sketcher.Constraint("DistanceY", -1, 1, 0, 3, 40.5),
    Sketcher.Constraint("DistanceY", 2, 1, 0, 1, 3.32973),
])
pocket3 = body.newObject("PartDesign::Pocket", "Pocket002")
pocket3.Profile = sketch11
pocket3.Type = "ThroughAll"
pocket3.Reversed = True
doc.recompute()

chamfer2 = body.newObject("PartDesign::Chamfer", "Chamfer001")
chamfer2.Base = (pocket3, edges_at(pocket3, [
    (35.335, -46.5, 79.014),
    (-38.665, -46.5, 75.986),
    (-38.665, -46.5, 38.986),
    (39.058, -46.5, 39.59),
]))
chamfer2.Size = 2

doc.recompute()
